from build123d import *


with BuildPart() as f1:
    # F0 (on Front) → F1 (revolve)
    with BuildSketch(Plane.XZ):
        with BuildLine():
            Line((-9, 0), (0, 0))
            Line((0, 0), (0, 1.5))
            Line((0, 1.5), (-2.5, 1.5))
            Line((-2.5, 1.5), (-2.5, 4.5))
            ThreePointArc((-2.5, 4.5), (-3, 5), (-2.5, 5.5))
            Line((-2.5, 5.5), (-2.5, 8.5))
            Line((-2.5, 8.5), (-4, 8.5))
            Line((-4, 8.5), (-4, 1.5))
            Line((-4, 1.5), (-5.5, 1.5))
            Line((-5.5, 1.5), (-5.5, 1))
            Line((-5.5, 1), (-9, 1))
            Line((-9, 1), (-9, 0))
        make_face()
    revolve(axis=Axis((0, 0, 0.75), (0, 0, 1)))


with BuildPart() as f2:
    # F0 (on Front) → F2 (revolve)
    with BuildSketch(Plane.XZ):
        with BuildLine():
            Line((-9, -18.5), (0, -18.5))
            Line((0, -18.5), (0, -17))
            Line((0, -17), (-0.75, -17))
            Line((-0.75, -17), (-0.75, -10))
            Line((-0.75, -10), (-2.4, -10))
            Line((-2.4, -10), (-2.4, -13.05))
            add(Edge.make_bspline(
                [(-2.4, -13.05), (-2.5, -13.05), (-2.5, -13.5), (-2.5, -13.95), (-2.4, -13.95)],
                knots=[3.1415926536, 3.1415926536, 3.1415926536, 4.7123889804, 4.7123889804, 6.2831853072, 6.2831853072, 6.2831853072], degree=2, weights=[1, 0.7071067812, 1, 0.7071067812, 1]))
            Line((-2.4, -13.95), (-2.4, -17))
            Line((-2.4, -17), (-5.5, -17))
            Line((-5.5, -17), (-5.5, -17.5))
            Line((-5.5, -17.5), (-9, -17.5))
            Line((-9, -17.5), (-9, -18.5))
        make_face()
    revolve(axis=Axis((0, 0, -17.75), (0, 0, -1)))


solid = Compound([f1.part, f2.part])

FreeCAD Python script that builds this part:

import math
import FreeCAD as App
import Part
import Sketcher

doc = App.newDocument("Part")
body = doc.addObject("PartDesign::Body", "Body")

sketch1 = body.newObject("Sketcher::SketchObject", "Sketch")
sketch1.AttachmentSupport = (doc.getObject("XZ_Plane"), [""])
sketch1.MapMode = "FlatFace"
sketch1.addGeometry(Part.LineSegment(App.Vector(-9, 0, 0), App.Vector(0, 0, 0)), False)
sketch1.addGeometry(Part.LineSegment(App.Vector(0, 0, 0), App.Vector(0, 1.5, 0)), False)
sketch1.addGeometry(Part.LineSegment(App.Vector(0, 1.5, 0), App.Vector(-2.5, 1.5, 0)), False)
sketch1.addGeometry(Part.LineSegment(App.Vector(-2.5, 1.5, 0), App.Vector(-2.5, 4.5, 0)), False)
sketch1.addGeometry(Part.ArcOfCircle(Part.Circle(App.Vector(-2.5, 5, 0), App.Vector(0, 0, 1), 0.5), math.radians(90), math.radians(270)), False)
sketch1.addGeometry(Part.LineSegment(App.Vector(-2.5, 5.5, 0), App.Vector(-2.5, 8.5, 0)), False)
sketch1.addGeometry(Part.LineSegment(App.Vector(-2.5, 8.5, 0), App.Vector(-4, 8.5, 0)), False)
sketch1.addGeometry(Part.LineSegment(App.Vector(-4, 8.5, 0), App.Vector(-4, 1.5, 0)), False)
sketch1.addGeometry(Part.LineSegment(App.Vector(-4, 1.5, 0), App.Vector(-5.5, 1.5, 0)), False)
sketch1.addGeometry(Part.LineSegment(App.Vector(-5.5, 1.5, 0), App.Vector(-5.5, 1, 0)), False)
sketch1.addGeometry(Part.LineSegment(App.Vector(-5.5, 1, 0), App.Vector(-9, 1, 0)), False)
sketch1.addGeometry(Part.LineSegment(App.Vector(-9, 1, 0), App.Vector(-9, 0, 0)), False)
sketch1.addConstraint(Sketcher.Constraint("Coincident", 0, 2, 1, 1))
sketch1.addConstraint(Sketcher.Constraint("Coincident", 1, 2, 2, 1))
sketch1.addConstraint(Sketcher.Constraint("Coincident", 2, 2, 3, 1))
sketch1.addConstraint(Sketcher.Constraint("Coincident", 3, 2, 4, 2))
sketch1.addConstraint(Sketcher.Constraint("Coincident", 4, 1, 5, 1))
sketch1.addConstraint(Sketcher.Constraint("Coincident", 5, 2, 6, 1))
sketch1.addConstraint(Sketcher.Constraint("Coincident", 6, 2, 7, 1))
sketch1.addConstraint(Sketcher.Constraint("Coincident", 7, 2, 8, 1))
sketch1.addConstraint(Sketcher.Constraint("Coincident", 8, 2, 9, 1))
sketch1.addConstraint(Sketcher.Constraint("Coincident", 9, 2, 10, 1))
sketch1.addConstraint(Sketcher.Constraint("Coincident", 10, 2, 11, 1))
sketch1.addConstraint(Sketcher.Constraint("Coincident", 11, 2, 0, 1))
sketch1.addConstraint(Sketcher.Constraint("Horizontal", 0))
sketch1.addConstraint(Sketcher.Constraint("Vertical", 1))
sketch1.addConstraint(Sketcher.Constraint("Horizontal", 2))
sketch1.addConstraint(Sketcher.Constraint("Vertical", 3))
sketch1.addConstraint(Sketcher.Constraint("Vertical", 5))
sketch1.addConstraint(Sketcher.Constraint("Horizontal", 6))
sketch1.addConstraint(Sketcher.Constraint("Vertical", 7))
sketch1.addConstraint(Sketcher.Constraint("Horizontal", 8))
sketch1.addConstraint(Sketcher.Constraint("Vertical", 9))
sketch1.addConstraint(Sketcher.Constraint("Horizontal", 10))
sketch1.addConstraint(Sketcher.Constraint("Vertical", 11))
sketch1.addConstraint(Sketcher.Constraint("Coincident", 0, 2, -1, 1))
sketch1.addConstraint(Sketcher.Constraint("Horizontal", 2, 2, 7, 2))
sketch1.addConstraint(Sketcher.Constraint("Vertical", 4, 3, 2, 2))
sketch1.addConstraint(Sketcher.Constraint("Vertical", 3, 2, 4, 1))
sketch1.addConstraint(Sketcher.Constraint("Equal", 6, 8))
sketch1.addConstraint(Sketcher.Constraint("Equal", 8, 1))
sketch1.addConstraint(Sketcher.Constraint("Equal", 3, 5))
sketch1.addConstraint(Sketcher.Constraint("Radius", 4, 0.5))
sketch1.addConstraint(Sketcher.Constraint("DistanceX", 0, 1, 0, 2, 9.0))
sketch1.addConstraint(Sketcher.Constraint("DistanceY", 3, 1, 3, 2, 3.0))
sketch1.addConstraint(Sketcher.Constraint("DistanceY", 11, 2, 11, 1, 1.0))
sketch1.addConstraint(Sketcher.Constraint("DistanceX", 2, 2, 2, 1, 2.5))
sketch1.addConstraint(Sketcher.Constraint("DistanceX", 6, 2, 6, 1, 1.5))
revolution = body.newObject("PartDesign::Revolution", "Revolution")
revolution.Profile = sketch1
revolution.ReferenceAxis = (sketch1, ["V_Axis"])
revolution.Angle = 360
body2 = doc.addObject("PartDesign::Body", "Body001")

sketch2 = body2.newObject("Sketcher::SketchObject", "Sketch001")
sketch2.AttachmentSupport = (doc.getObject("XZ_Plane001"), [""])
sketch2.MapMode = "FlatFace"
sketch2.addGeometry(Part.LineSegment(App.Vector(-9, -18.5, 0), App.Vector(0, -18.5, 0)), False)
sketch2.addGeometry(Part.LineSegment(App.Vector(0, -18.5, 0), App.Vector(0, -17, 0)), False)
sketch2.addGeometry(Part.LineSegment(App.Vector(0, -17, 0), App.Vector(-0.75, -17, 0)), False)
sketch2.addGeometry(Part.LineSegment(App.Vector(-0.75, -17, 0), App.Vector(-0.75, -10, 0)), False)
sketch2.addGeometry(Part.LineSegment(App.Vector(-0.75, -10, 0), App.Vector(-2.4, -10, 0)), False)
sketch2.addGeometry(Part.LineSegment(App.Vector(-2.4, -10, 0), App.Vector(-2.4, -13.05, 0)), False)
sketch2.addGeometry(Part.BSplineCurve([App.Vector(-2.4, -13.05, 0), App.Vector(-2.5, -13.05, 0), App.Vector(-2.5, -13.5, 0), App.Vector(-2.5, -13.95, 0), App.Vector(-2.4, -13.95, 0)], [3, 2, 3], [3.141592654, 4.71238898, 6.283185307], False, 2, [1, 0.707106781, 1, 0.707106781, 1], False), False)
sketch2.addGeometry(Part.LineSegment(App.Vector(-2.4, -13.95, 0), App.Vector(-2.4, -17, 0)), False)
sketch2.addGeometry(Part.LineSegment(App.Vector(-2.4, -17, 0), App.Vector(-5.5, -17, 0)), False)
sketch2.addGeometry(Part.LineSegment(App.Vector(-5.5, -17, 0), App.Vector(-5.5, -17.5, 0)), False)
sketch2.addGeometry(Part.LineSegment(App.Vector(-5.5, -17.5, 0), App.Vector(-9, -17.5, 0)), False)
sketch2.addGeometry(Part.LineSegment(App.Vector(-9, -17.5, 0), App.Vector(-9, -18.5, 0)), False)
sketch2.addConstraint(Sketcher.Constraint("Block", 6))
sketch2.addConstraint(Sketcher.Constraint("Coincident", 0, 2, 1, 1))
sketch2.addConstraint(Sketcher.Constraint("Coincident", 1, 2, 2, 1))
sketch2.addConstraint(Sketcher.Constraint("Coincident", 2, 2, 3, 1))
sketch2.addConstraint(Sketcher.Constraint("Coincident", 3, 2, 4, 1))
sketch2.addConstraint(Sketcher.Constraint("Coincident", 4, 2, 5, 1))
sketch2.addConstraint(Sketcher.Constraint("Coincident", 5, 2, 6, 1))
sketch2.addConstraint(Sketcher.Constraint("Coincident", 6, 2, 7, 1))
sketch2.addConstraint(Sketcher.Constraint("Coincident", 7, 2, 8, 1))
sketch2.addConstraint(Sketcher.Constraint("Coincident", 8, 2, 9, 1))
sketch2.addConstraint(Sketcher.Constraint("Coincident", 9, 2, 10, 1))
sketch2.addConstraint(Sketcher.Constraint("Coincident", 10, 2, 11, 1))
sketch2.addConstraint(Sketcher.Constraint("Coincident", 11, 2, 0, 1))
sketch2.addConstraint(Sketcher.Constraint("Horizontal", 0))
sketch2.addConstraint(Sketcher.Constraint("Vertical", 1))
sketch2.addConstraint(Sketcher.Constraint("Horizontal", 2))
sketch2.addConstraint(Sketcher.Constraint("Vertical", 3))
sketch2.addConstraint(Sketcher.Constraint("Horizontal", 4))
sketch2.addConstraint(Sketcher.Constraint("Vertical", 5))
sketch2.addConstraint(Sketcher.Constraint("Vertical", 7))
sketch2.addConstraint(Sketcher.Constraint("Horizontal", 8))
sketch2.addConstraint(Sketcher.Constraint("Vertical", 9))
sketch2.addConstraint(Sketcher.Constraint("Horizontal", 10))
sketch2.addConstraint(Sketcher.Constraint("Vertical", 11))
sketch2.addConstraint(Sketcher.Constraint("PointOnObject", 0, 2, -2))
sketch2.addConstraint(Sketcher.Constraint("Horizontal", 2, 2, 7, 2))
sketch2.addConstraint(Sketcher.Constraint("Equal", 5, 7))
sketch2.addConstraint(Sketcher.Constraint("DistanceX", 0, 1, 0, 2, 9.0))
sketch2.addConstraint(Sketcher.Constraint("DistanceY", 3, 1, 3, 2, 7.0))
sketch2.addConstraint(Sketcher.Constraint("DistanceY", 11, 2, 11, 1, 1.0))
sketch2.addConstraint(Sketcher.Constraint("DistanceX", 8, 2, 8, 1, 3.1))
sketch2.addConstraint(Sketcher.Constraint("DistanceY", 1, 1, 1, 2, 1.5))
sketch2.addConstraint(Sketcher.Constraint("DistanceX", 2, 2, 2, 1, 0.75))
revolution2 = body2.newObject("PartDesign::Revolution", "Revolution001")
revolution2.Profile = sketch2
revolution2.ReferenceAxis = (sketch2, ["V_Axis"])
revolution2.Angle = 360

doc.recompute()
